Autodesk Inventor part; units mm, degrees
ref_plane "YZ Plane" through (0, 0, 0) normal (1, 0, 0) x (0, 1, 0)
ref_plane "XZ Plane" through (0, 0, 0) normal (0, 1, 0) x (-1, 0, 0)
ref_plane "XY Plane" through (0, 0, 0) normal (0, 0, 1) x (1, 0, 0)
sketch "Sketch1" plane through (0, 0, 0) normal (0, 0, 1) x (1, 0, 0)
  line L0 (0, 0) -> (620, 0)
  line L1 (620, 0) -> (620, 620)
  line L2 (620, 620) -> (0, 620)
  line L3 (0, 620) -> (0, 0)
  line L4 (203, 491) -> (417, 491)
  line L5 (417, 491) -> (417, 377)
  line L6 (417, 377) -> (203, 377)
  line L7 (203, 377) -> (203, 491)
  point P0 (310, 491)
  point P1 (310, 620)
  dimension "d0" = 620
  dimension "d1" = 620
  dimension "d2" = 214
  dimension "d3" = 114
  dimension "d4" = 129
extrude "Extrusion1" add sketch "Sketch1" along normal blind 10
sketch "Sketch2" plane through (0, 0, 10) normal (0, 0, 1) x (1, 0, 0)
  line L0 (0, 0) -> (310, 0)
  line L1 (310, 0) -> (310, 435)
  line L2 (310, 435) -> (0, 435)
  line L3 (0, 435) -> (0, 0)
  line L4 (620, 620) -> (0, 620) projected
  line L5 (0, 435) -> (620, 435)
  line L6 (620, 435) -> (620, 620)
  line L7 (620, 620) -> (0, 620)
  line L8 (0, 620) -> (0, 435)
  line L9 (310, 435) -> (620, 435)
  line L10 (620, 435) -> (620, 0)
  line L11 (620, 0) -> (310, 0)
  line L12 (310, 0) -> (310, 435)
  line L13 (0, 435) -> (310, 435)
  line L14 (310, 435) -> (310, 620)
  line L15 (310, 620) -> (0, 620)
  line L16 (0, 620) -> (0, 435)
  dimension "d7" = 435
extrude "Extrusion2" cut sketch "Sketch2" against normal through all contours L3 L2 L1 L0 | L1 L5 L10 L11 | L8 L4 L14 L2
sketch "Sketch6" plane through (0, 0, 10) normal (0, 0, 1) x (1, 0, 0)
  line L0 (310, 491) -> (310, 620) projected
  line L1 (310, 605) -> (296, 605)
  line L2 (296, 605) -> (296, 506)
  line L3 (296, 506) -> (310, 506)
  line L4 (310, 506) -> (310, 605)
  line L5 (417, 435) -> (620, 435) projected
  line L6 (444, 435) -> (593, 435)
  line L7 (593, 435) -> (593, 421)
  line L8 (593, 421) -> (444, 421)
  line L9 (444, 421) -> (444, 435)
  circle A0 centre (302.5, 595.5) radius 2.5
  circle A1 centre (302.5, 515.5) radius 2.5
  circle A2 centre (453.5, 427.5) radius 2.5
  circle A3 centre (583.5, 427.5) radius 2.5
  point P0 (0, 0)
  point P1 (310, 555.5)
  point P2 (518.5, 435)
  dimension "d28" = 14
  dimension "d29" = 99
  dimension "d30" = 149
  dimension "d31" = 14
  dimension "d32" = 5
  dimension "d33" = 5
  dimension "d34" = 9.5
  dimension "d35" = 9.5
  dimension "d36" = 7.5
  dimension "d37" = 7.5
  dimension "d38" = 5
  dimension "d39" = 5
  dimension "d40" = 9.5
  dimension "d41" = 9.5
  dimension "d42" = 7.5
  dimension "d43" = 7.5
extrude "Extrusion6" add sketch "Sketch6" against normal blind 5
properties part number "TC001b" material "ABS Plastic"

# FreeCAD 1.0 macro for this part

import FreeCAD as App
import Part
import Sketcher
from FreeCAD import Vector


def add_polygon(sketch, points):
    """Adds a closed chain of lines whose ends are joined by coincident constraints."""
    first, n = sketch.GeometryCount, len(points)
    for a, b in zip(points, points[1:] + points[:1]):
        sketch.addGeometry(Part.LineSegment(App.Vector(*a, 0), App.Vector(*b, 0)), False)
    for i in range(n):
        sketch.addConstraint(Sketcher.Constraint("Coincident", first + i, 2, first + (i + 1) % n, 1))

doc = App.newDocument("Part")
body = doc.addObject("PartDesign::Body", "Body")

# Sketch on XY plane
sketch1 = doc.addObject("Sketcher::SketchObject", "Sketch")
body.addObject(sketch1)
sketch1.AttachmentSupport = (doc.XY_Plane, [""])
sketch1.MapMode = "FlatFace"
add_polygon(sketch1, [(0, 620), (0, 0), (620, 0), (620, 620)])  # lines 0-3
add_polygon(sketch1, [(203, 377), (203, 491), (417, 491), (417, 377)])  # lines 4-7
sketch1.addConstraint([
    Sketcher.Constraint("Vertical", 0),
    Sketcher.Constraint("Horizontal", 1),
    Sketcher.Constraint("Vertical", 2),
    Sketcher.Constraint("Horizontal", 3),
    Sketcher.Constraint("Vertical", 4),
    Sketcher.Constraint("Horizontal", 5),
    Sketcher.Constraint("Vertical", 6),
    Sketcher.Constraint("Horizontal", 7),
    Sketcher.Constraint("Coincident", 0, 2, -1, 1),
    Sketcher.Constraint("Equal", 3, 0),
    Sketcher.Constraint("DistanceX", 1, 1, 1, 2, 620.0),
    Sketcher.Constraint("DistanceX", 5, 1, 5, 2, 214.0),
    Sketcher.Constraint("DistanceY", 4, 1, 4, 2, 114.0),
    Sketcher.Constraint("DistanceY", 4, 2, 3, 2, 129.0),
    Sketcher.Constraint("DistanceX", -1, 1, 4, 2, 203.0),
])
pad1 = doc.addObject("PartDesign::Pad", "Pad")
body.addObject(pad1)
pad1.Profile = sketch1
pad1.Length = 10

# Sketch on XY plane
sketch2 = doc.addObject("Sketcher::SketchObject", "Sketch001")
body.addObject(sketch2)
sketch2.AttachmentSupport = (doc.XY_Plane, [""])
sketch2.MapMode = "FlatFace"
sketch2.AttachmentOffset = App.Placement(Vector(0, 0, 10), App.Rotation())
add_polygon(sketch2, [(0, 0), (620, 0), (620, 435), (310, 435), (310, 620), (0, 620)])  # lines 0-5
sketch2.addConstraint([
    Sketcher.Constraint("Horizontal", 0),
    Sketcher.Constraint("Vertical", 1),
    Sketcher.Constraint("Horizontal", 2),
    Sketcher.Constraint("Vertical", 3),
    Sketcher.Constraint("Horizontal", 4),
    Sketcher.Constraint("Vertical", 5),
    Sketcher.Constraint("Coincident", 5, 2, -1, 1),
    Sketcher.Constraint("Equal", 2, 4),
    Sketcher.Constraint("Equal", 0, 5),
    Sketcher.Constraint("DistanceY", 1, 1, 1, 2, 435.0),
    Sketcher.Constraint("DistanceX", 0, 1, 0, 2, 620.0),
])
pocket1 = doc.addObject("PartDesign::Pocket", "Pocket")
body.addObject(pocket1)
pocket1.Profile = sketch2
pocket1.Type = "ThroughAll"

# Sketch on XY plane
sketch3 = doc.addObject("Sketcher::SketchObject", "Sketch002")
body.addObject(sketch3)
sketch3.AttachmentSupport = (doc.XY_Plane, [""])
sketch3.MapMode = "FlatFace"
sketch3.AttachmentOffset = App.Placement(Vector(0, 0, 10), App.Rotation())
add_polygon(sketch3, [(296, 506), (310, 506), (310, 605), (296, 605)])  # lines 0-3
sketch3.addGeometry(Part.Circle(Vector(302.5, 515.5, 0), Vector(0, 0, 1), 2.5), False)  # 4
sketch3.addGeometry(Part.Circle(Vector(302.5, 595.5, 0), Vector(0, 0, 1), 2.5), False)  # 5
add_polygon(sketch3, [(593, 435), (444, 435), (444, 421), (593, 421)])  # lines 6-9
sketch3.addGeometry(Part.Circle(Vector(453.5, 427.5, 0), Vector(0, 0, 1), 2.5), False)  # 10
sketch3.addGeometry(Part.Circle(Vector(583.5, 427.5, 0), Vector(0, 0, 1), 2.5), False)  # 11
sketch3.addConstraint([
    Sketcher.Constraint("Horizontal", 0),
    Sketcher.Constraint("Vertical", 1),
    Sketcher.Constraint("Horizontal", 2),
    Sketcher.Constraint("Vertical", 3),
    Sketcher.Constraint("Horizontal", 6),
    Sketcher.Constraint("Vertical", 7),
    Sketcher.Constraint("Horizontal", 8),
    Sketcher.Constraint("Vertical", 9),
    Sketcher.Constraint("Equal", 4, 5),
    Sketcher.Constraint("Equal", 5, 10),
    Sketcher.Constraint("Equal", 10, 11),
    Sketcher.Constraint("Horizontal", 10, 3, 11, 3),
    Sketcher.Constraint("Vertical", 4, 3, 5, 3),
    Sketcher.Constraint("Equal", 2, 7),
    Sketcher.Constraint("Diameter", 4, 5.0),
    Sketcher.Constraint("DistanceX", 0, 1, 0, 2, 14.0),
    Sketcher.Constraint("DistanceX", 6, 2, 6, 1, 149.0),
    Sketcher.Constraint("DistanceY", 1, 1, 1, 2, 99.0),
    Sketcher.Constraint("DistanceX", 4, 3, 0, 2, 7.5),
    Sketcher.Constraint("DistanceY", 0, 2, 4, 3, 9.5),
    Sketcher.Constraint("DistanceY", 5, 3, 1, 2, 9.5),
    Sketcher.Constraint("DistanceX", 6, 2, 10, 3, 9.5),
    Sketcher.Constraint("DistanceY", 10, 3, 6, 2, 7.5),
    Sketcher.Constraint("DistanceX", 11, 3, 8, 2, 9.5),
    Sketcher.Constraint("DistanceX", -1, 1, 0, 2, 310.0),
    Sketcher.Constraint("DistanceY", -1, 1, 0, 2, 506.0),
    Sketcher.Constraint("DistanceX", -1, 1, 6, 2, 444.0),
    Sketcher.Constraint("DistanceY", -1, 1, 6, 2, 435.0),
])
pad2 = doc.addObject("PartDesign::Pad", "Pad001")
body.addObject(pad2)
pad2.Profile = sketch3
pad2.Length = 5
pad2.Reversed = True

doc.recompute()
